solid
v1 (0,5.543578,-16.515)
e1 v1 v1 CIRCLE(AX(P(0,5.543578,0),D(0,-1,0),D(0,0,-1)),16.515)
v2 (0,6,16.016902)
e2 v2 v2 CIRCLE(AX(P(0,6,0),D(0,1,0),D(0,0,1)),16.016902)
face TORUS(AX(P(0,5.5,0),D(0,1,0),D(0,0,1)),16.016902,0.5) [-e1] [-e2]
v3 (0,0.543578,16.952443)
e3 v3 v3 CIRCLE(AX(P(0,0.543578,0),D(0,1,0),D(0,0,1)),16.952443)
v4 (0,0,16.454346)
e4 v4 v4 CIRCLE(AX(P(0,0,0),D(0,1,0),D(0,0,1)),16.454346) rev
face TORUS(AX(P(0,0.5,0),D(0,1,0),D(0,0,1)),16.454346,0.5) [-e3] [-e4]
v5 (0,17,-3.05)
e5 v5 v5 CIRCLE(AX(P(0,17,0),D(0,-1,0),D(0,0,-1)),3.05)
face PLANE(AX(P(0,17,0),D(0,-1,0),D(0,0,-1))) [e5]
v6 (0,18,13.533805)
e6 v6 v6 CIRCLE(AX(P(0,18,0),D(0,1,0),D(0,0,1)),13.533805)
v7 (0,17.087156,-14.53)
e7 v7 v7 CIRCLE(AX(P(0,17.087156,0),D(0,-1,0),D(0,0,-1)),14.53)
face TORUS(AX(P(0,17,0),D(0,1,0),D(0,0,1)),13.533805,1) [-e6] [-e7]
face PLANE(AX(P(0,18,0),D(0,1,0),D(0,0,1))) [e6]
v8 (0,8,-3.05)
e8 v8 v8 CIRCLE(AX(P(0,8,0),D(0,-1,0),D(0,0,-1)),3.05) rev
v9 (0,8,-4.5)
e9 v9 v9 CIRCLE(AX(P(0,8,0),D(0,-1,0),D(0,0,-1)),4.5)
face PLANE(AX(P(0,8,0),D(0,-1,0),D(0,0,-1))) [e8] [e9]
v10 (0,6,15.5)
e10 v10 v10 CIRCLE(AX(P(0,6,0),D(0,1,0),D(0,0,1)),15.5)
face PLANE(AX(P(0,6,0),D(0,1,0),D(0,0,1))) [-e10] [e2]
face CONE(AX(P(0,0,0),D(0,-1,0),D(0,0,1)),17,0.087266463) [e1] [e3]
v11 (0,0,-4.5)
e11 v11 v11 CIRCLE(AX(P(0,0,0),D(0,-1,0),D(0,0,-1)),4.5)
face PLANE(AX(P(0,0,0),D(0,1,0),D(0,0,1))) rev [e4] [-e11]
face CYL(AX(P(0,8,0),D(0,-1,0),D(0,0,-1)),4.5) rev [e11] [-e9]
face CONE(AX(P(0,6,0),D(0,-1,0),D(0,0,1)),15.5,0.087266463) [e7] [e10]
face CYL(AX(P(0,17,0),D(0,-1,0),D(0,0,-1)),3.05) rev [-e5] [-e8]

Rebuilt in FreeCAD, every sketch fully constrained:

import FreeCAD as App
import Part
import Sketcher


def edges_at(feature, points):
    """Names of the edges that pass closest to the given points."""
    edges = feature.Shape.Edges
    near = lambda p: min(range(len(edges)), key=lambda i: edges[i].distToShape(Part.Vertex(*p))[0])
    return sorted({f"Edge{near(p) + 1}" for p in points})

doc = App.newDocument("Part")
body = doc.addObject("PartDesign::Body", "Body")

# Sketch on XZ plane
sketch1 = body.newObject("Sketcher::SketchObject", "Sketch")
sketch1.AttachmentSupport = (doc.getObject("XZ_Plane"), [""])
sketch1.MapMode = "FlatFace"
sketch1.addGeometry(Part.Circle(App.Vector(0, 0, 0), App.Vector(0, 0, 1), 17), False)
sketch1.addConstraint(Sketcher.Constraint("Coincident", 0, 3, -1, 1))
sketch1.addConstraint(Sketcher.Constraint("Diameter", 0, 34.0))
pad1 = body.newObject("PartDesign::Pad", "Pad")
pad1.Profile = sketch1
pad1.Length = 6
pad1.Reversed = True
pad1.TaperAngle = -5

# Sketch on XZ plane
sketch2 = body.newObject("Sketcher::SketchObject", "Sketch001")
sketch2.AttachmentSupport = (doc.getObject("XZ_Plane"), [""])
sketch2.MapMode = "FlatFace"
sketch2.AttachmentOffset = App.Placement(App.Vector(0, 0, -6), App.Rotation())
sketch2.addGeometry(Part.Circle(App.Vector(0, 0, 0), App.Vector(0, 0, 1), 16), False)
sketch2.addConstraint(Sketcher.Constraint("Coincident", 0, 3, -1, 1))
sketch2.addConstraint(Sketcher.Constraint("Diameter", 0, 31.0))
pad2 = body.newObject("PartDesign::Pad", "Pad001")
pad2.Profile = sketch2
pad2.Length = 12
pad2.Reversed = True
pad2.TaperAngle = -5

# Sketch on XZ plane
sketch3 = body.newObject("Sketcher::SketchObject", "Sketch002")
sketch3.AttachmentSupport = (doc.getObject("XZ_Plane"), [""])
sketch3.MapMode = "FlatFace"
sketch3.addGeometry(Part.Circle(App.Vector(0, 0, 0), App.Vector(0, 0, 1), 3), False)
sketch3.addConstraint(Sketcher.Constraint("Coincident", 0, 3, -1, 1))
sketch3.addConstraint(Sketcher.Constraint("Diameter", 0, 6.1))
pocket1 = body.newObject("PartDesign::Pocket", "Pocket")
pocket1.Profile = sketch3
pocket1.Length = 17
doc.recompute()

fillet = body.newObject("PartDesign::Fillet", "Fillet")
fillet.Base = (pocket1, edges_at(pocket1, [(-14.45, 18, 0)]))
fillet.Radius = 1
doc.recompute()

fillet2 = body.newObject("PartDesign::Fillet", "Fillet001")
fillet2.Base = (fillet, edges_at(fillet, [(-16.475, 6, 0)]))
fillet2.Radius = 0.5

# Sketch on XZ plane
sketch4 = body.newObject("Sketcher::SketchObject", "Sketch003")
sketch4.AttachmentSupport = (doc.getObject("XZ_Plane"), [""])
sketch4.MapMode = "FlatFace"
sketch4.addGeometry(Part.Circle(App.Vector(0, 0, 0), App.Vector(0, 0, 1), 4.5), False)
sketch4.addConstraint(Sketcher.Constraint("Coincident", 0, 3, -1, 1))
sketch4.addConstraint(Sketcher.Constraint("Diameter", 0, 9.0))
pocket2 = body.newObject("PartDesign::Pocket", "Pocket001")
pocket2.Profile = sketch4
pocket2.Length = 8
doc.recompute()

fillet3 = body.newObject("PartDesign::Fillet", "Fillet002")
fillet3.Base = (pocket2, edges_at(pocket2, [(-17, 0, 0)]))
fillet3.Radius = 0.5

doc.recompute()
